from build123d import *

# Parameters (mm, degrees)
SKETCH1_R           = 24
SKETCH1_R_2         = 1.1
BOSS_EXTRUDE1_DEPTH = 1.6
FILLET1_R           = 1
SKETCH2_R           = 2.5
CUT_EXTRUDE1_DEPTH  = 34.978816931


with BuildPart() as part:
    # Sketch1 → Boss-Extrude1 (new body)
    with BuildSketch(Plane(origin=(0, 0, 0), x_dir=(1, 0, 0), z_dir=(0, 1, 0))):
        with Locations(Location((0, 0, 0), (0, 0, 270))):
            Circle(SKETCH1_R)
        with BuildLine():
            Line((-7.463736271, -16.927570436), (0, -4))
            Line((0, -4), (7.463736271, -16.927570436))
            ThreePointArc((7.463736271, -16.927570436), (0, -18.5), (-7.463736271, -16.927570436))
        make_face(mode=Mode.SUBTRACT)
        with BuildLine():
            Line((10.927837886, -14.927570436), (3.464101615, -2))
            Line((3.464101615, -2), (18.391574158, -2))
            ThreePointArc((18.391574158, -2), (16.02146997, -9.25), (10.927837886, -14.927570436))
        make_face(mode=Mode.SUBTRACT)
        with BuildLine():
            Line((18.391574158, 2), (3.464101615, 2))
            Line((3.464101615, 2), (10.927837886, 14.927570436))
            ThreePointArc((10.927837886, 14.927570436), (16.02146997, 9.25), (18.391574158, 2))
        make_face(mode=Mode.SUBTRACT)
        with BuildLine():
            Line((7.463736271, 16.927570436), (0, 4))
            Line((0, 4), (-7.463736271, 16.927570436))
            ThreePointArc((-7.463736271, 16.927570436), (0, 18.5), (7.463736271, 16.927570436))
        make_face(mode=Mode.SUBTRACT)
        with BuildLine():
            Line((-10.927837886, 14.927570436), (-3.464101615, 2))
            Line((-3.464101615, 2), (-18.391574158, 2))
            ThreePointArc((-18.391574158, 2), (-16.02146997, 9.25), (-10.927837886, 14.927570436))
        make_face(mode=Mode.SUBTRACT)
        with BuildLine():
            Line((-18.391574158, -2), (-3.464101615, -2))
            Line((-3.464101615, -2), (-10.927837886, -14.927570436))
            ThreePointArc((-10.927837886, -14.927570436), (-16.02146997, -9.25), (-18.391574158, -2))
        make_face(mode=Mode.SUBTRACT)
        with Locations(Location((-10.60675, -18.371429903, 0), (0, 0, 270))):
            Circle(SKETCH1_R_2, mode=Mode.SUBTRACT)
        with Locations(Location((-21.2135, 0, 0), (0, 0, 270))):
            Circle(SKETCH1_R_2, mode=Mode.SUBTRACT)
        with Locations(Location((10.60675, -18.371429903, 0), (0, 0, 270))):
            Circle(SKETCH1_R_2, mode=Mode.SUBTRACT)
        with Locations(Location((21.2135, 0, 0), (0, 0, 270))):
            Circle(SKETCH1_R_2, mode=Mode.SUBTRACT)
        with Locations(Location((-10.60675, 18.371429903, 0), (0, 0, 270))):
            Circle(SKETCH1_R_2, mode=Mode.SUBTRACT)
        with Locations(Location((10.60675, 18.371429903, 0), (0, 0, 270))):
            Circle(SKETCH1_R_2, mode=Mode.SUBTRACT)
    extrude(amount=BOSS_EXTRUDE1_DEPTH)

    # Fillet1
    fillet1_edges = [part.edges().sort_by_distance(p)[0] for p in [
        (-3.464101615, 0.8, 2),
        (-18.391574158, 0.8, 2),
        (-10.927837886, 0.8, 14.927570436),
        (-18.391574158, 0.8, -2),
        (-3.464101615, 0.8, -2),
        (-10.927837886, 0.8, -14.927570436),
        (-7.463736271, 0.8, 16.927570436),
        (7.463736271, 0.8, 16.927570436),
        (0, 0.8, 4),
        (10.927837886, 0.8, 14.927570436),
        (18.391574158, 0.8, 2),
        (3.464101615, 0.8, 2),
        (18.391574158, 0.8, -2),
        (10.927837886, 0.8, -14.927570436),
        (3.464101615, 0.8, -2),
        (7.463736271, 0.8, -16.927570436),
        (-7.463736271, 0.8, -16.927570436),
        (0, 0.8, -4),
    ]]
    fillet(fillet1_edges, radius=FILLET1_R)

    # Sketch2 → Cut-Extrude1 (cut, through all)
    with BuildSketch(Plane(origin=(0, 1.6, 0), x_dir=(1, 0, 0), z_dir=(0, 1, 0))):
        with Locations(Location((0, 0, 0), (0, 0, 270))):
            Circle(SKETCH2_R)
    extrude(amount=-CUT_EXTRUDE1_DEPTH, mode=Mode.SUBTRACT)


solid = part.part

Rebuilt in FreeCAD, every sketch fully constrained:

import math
import FreeCAD as App
import Part
import Sketcher

V = App.Vector
Q = App.Units.Quantity


def edges_at(feature, points):
    """Names of the edges that pass closest to the given points."""
    edges = feature.Shape.Edges
    near = lambda p: min(range(len(edges)), key=lambda i: edges[i].distToShape(Part.Vertex(*p))[0])
    return sorted({f"Edge{near(p) + 1}" for p in points})

doc = App.newDocument("Part")
body = doc.addObject("PartDesign::Body", "Body")

sketch1 = body.newObject("Sketcher::SketchObject", "Sketch")
sketch1.AttachmentSupport = (doc.getObject("XZ_Plane"), [""])
sketch1.MapMode = "FlatFace"
sketch1.addGeometry(Part.Circle(V(0, 0, 0), V(0, 0, 1), 24), False)
sketch1.addGeometry(Part.Circle(V(-10.6, -18.4, 0), V(0, 0, 1), 1.1), False)
sketch1.addGeometry(Part.ArcOfCircle(Part.Circle(V(0, 0, 0), V(0, 0, 1), 18.5), math.radians(-114), math.radians(-66)), False)
sketch1.addGeometry(Part.LineSegment(V(7.5, -16.9, 0), V(0, -4, 0)), False)
sketch1.addGeometry(Part.LineSegment(V(0, -4, 0), V(-7.5, -16.9, 0)), False)
sketch1.addGeometry(Part.ArcOfCircle(Part.Circle(V(0, 0, 0), V(0, 0, 1), 18.5), math.radians(-174), math.radians(-126)), False)
sketch1.addGeometry(Part.LineSegment(V(-10.9, -14.9, 0), V(-3.5, -2, 0)), False)
sketch1.addGeometry(Part.LineSegment(V(-3.5, -2, 0), V(-18.4, -2, 0)), False)
sketch1.addGeometry(Part.Circle(V(-21.2, 0, 0), V(0, 0, 1), 1.1), False)
sketch1.addGeometry(Part.ArcOfCircle(Part.Circle(V(0, 0, 0), V(0, 0, 1), 18.5), math.radians(126), math.radians(174)), False)
sketch1.addGeometry(Part.LineSegment(V(-18.4, 2, 0), V(-3.5, 2, 0)), False)
sketch1.addGeometry(Part.LineSegment(V(-3.5, 2, 0), V(-10.9, 14.9, 0)), False)
sketch1.addGeometry(Part.Circle(V(-10.6, 18.4, 0), V(0, 0, 1), 1.1), False)
sketch1.addGeometry(Part.Circle(V(10.6, -18.4, 0), V(0, 0, 1), 1.1), False)
sketch1.addGeometry(Part.ArcOfCircle(Part.Circle(V(0, 0, 0), V(0, 0, 1), 18.5), math.radians(-54), math.radians(-6)), False)
sketch1.addGeometry(Part.LineSegment(V(18.4, -2, 0), V(3.5, -2, 0)), False)
sketch1.addGeometry(Part.LineSegment(V(3.5, -2, 0), V(10.9, -14.9, 0)), False)
sketch1.addGeometry(Part.Circle(V(21.2, 0, 0), V(0, 0, 1), 1.1), False)
sketch1.addGeometry(Part.ArcOfCircle(Part.Circle(V(0, 0, 0), V(0, 0, 1), 18.5), math.radians(6), math.radians(54)), False)
sketch1.addGeometry(Part.LineSegment(V(10.9, 14.9, 0), V(3.5, 2, 0)), False)
sketch1.addGeometry(Part.LineSegment(V(3.5, 2, 0), V(18.4, 2, 0)), False)
sketch1.addGeometry(Part.ArcOfCircle(Part.Circle(V(0, 0, 0), V(0, 0, 1), 18.5), math.radians(66), math.radians(114)), False)
sketch1.addGeometry(Part.LineSegment(V(-7.5, 16.9, 0), V(0, 4, 0)), False)
sketch1.addGeometry(Part.LineSegment(V(0, 4, 0), V(7.5, 16.9, 0)), False)
sketch1.addGeometry(Part.Circle(V(10.6, 18.4, 0), V(0, 0, 1), 1.1), False)
sketch1.addConstraint(Sketcher.Constraint("Coincident", 2, 2, 3, 1))
sketch1.addConstraint(Sketcher.Constraint("Coincident", 3, 2, 4, 1))
sketch1.addConstraint(Sketcher.Constraint("Coincident", 4, 2, 2, 1))
sketch1.addConstraint(Sketcher.Constraint("Coincident", 5, 2, 6, 1))
sketch1.addConstraint(Sketcher.Constraint("Coincident", 6, 2, 7, 1))
sketch1.addConstraint(Sketcher.Constraint("Coincident", 7, 2, 5, 1))
sketch1.addConstraint(Sketcher.Constraint("Coincident", 9, 2, 10, 1))
sketch1.addConstraint(Sketcher.Constraint("Coincident", 10, 2, 11, 1))
sketch1.addConstraint(Sketcher.Constraint("Coincident", 11, 2, 9, 1))
sketch1.addConstraint(Sketcher.Constraint("Coincident", 14, 2, 15, 1))
sketch1.addConstraint(Sketcher.Constraint("Coincident", 15, 2, 16, 1))
sketch1.addConstraint(Sketcher.Constraint("Coincident", 16, 2, 14, 1))
sketch1.addConstraint(Sketcher.Constraint("Coincident", 18, 2, 19, 1))
sketch1.addConstraint(Sketcher.Constraint("Coincident", 19, 2, 20, 1))
sketch1.addConstraint(Sketcher.Constraint("Coincident", 20, 2, 18, 1))
sketch1.addConstraint(Sketcher.Constraint("Coincident", 21, 2, 22, 1))
sketch1.addConstraint(Sketcher.Constraint("Coincident", 22, 2, 23, 1))
sketch1.addConstraint(Sketcher.Constraint("Coincident", 23, 2, 21, 1))
sketch1.addConstraint(Sketcher.Constraint("Horizontal", 7))
sketch1.addConstraint(Sketcher.Constraint("Horizontal", 10))
sketch1.addConstraint(Sketcher.Constraint("Horizontal", 15))
sketch1.addConstraint(Sketcher.Constraint("Horizontal", 20))
sketch1.addConstraint(Sketcher.Constraint("Coincident", 0, 3, -1, 1))
sketch1.addConstraint(Sketcher.Constraint("Coincident", 2, 3, -1, 1))
sketch1.addConstraint(Sketcher.Constraint("Coincident", 5, 3, -1, 1))
sketch1.addConstraint(Sketcher.Constraint("Coincident", 9, 3, -1, 1))
sketch1.addConstraint(Sketcher.Constraint("Coincident", 14, 3, -1, 1))
sketch1.addConstraint(Sketcher.Constraint("Coincident", 18, 3, -1, 1))
sketch1.addConstraint(Sketcher.Constraint("Coincident", 21, 3, -1, 1))
sketch1.addConstraint(Sketcher.Constraint("Equal", 2, 5))
sketch1.addConstraint(Sketcher.Constraint("Equal", 1, 8))
sketch1.addConstraint(Sketcher.Constraint("Equal", 5, 9))
sketch1.addConstraint(Sketcher.Constraint("Equal", 8, 12))
sketch1.addConstraint(Sketcher.Constraint("Equal", 12, 13))
sketch1.addConstraint(Sketcher.Constraint("Equal", 9, 14))
sketch1.addConstraint(Sketcher.Constraint("Equal", 13, 17))
sketch1.addConstraint(Sketcher.Constraint("Equal", 14, 18))
sketch1.addConstraint(Sketcher.Constraint("Equal", 18, 21))
sketch1.addConstraint(Sketcher.Constraint("Equal", 17, 24))
sketch1.addConstraint(Sketcher.Constraint("Symmetric", 12, 3, 13, 3, -1, 1))
sketch1.addConstraint(Sketcher.Constraint("Symmetric", 8, 3, 17, 3, -1, 1))
sketch1.addConstraint(Sketcher.Constraint("Symmetric", 1, 3, 24, 3, -1, 1))
sketch1.addConstraint(Sketcher.Constraint("Symmetric", 10, 2, 15, 2, -1, 1))
sketch1.addConstraint(Sketcher.Constraint("Symmetric", 6, 2, 19, 2, -1, 1))
sketch1.addConstraint(Sketcher.Constraint("Symmetric", 3, 2, 22, 2, -1, 1))
sketch1.addConstraint(Sketcher.Constraint("Symmetric", 1, 3, 13, 3, -2))
sketch1.addConstraint(Sketcher.Constraint("Symmetric", 6, 2, 15, 2, -2))
sketch1.addConstraint(Sketcher.Constraint("PointOnObject", 8, 3, -1))
sketch1.addConstraint(Sketcher.Constraint("PointOnObject", 3, 2, -2))
sketch1.addConstraint(Sketcher.Constraint("Parallel", 4, 6))
sketch1.addConstraint(Sketcher.Constraint("Parallel", 3, 11))
sketch1.addConstraint(Sketcher.Constraint("Parallel", 11, 16))
sketch1.addConstraint(Sketcher.Constraint("Parallel", 6, 19))
sketch1.addConstraint(Sketcher.Constraint("Parallel", 16, 22))
sketch1.addConstraint(Sketcher.Constraint("Parallel", 19, 23))
sketch1.addConstraint(Sketcher.Constraint("Horizontal", 2, 2, 4, 2))
sketch1.addConstraint(Sketcher.Constraint("Equal", 4, 6))
sketch1.addConstraint(Sketcher.Constraint("Diameter", 0, Q("48 mm")))
sketch1.addConstraint(Sketcher.Constraint("Diameter", 1, Q("2.2 mm")))
sketch1.addConstraint(Sketcher.Constraint("Radius", 2, Q("18.5 mm")))
sketch1.addConstraint(Sketcher.Constraint("Angle", 3, Q("120 deg")))
sketch1.addConstraint(Sketcher.Constraint("DistanceY", 3, 2, -1, 1, Q("4 mm")))
sketch1.addConstraint(Sketcher.Constraint("DistanceY", 6, 2, -1, 1, Q("2 mm")))
sketch1.addConstraint(Sketcher.Constraint("DistanceX", 8, 3, -1, 1, Q("21.2135 mm")))
sketch1.addConstraint(Sketcher.Constraint("DistanceX", 1, 3, 13, 3, Q("21.2135 mm")))
sketch1.addConstraint(Sketcher.Constraint("DistanceY", 1, 3, -1, 1, Q("18.37143 mm")))
pad1 = body.newObject("PartDesign::Pad", "Pad")
pad1.Profile = sketch1
pad1.Length = 1.6
pad1.Reversed = True
doc.recompute()

fillet = body.newObject("PartDesign::Fillet", "Fillet")
fillet.Base = (pad1, edges_at(pad1, [
    (-3.464, 0.8, 2),
    (-18.392, 0.8, 2),
    (-10.928, 0.8, 14.928),
    (-18.392, 0.8, -2),
    (-3.464, 0.8, -2),
    (-10.928, 0.8, -14.928),
    (-7.464, 0.8, 16.928),
    (7.464, 0.8, 16.928),
    (0, 0.8, 4),
    (10.928, 0.8, 14.928),
    (18.392, 0.8, 2),
    (3.464, 0.8, 2),
    (18.392, 0.8, -2),
    (10.928, 0.8, -14.928),
    (3.464, 0.8, -2),
    (7.464, 0.8, -16.928),
    (-7.464, 0.8, -16.928),
    (0, 0.8, -4),
]))
fillet.Radius = 1

sketch2 = body.newObject("Sketcher::SketchObject", "Sketch001")
sketch2.AttachmentSupport = (doc.getObject("XZ_Plane"), [""])
sketch2.MapMode = "FlatFace"
sketch2.AttachmentOffset = App.Placement(V(0, 0, -1.6), App.Rotation())
sketch2.addGeometry(Part.Circle(V(0, 0, 0), V(0, 0, 1), 2.5), False)
sketch2.addConstraint(Sketcher.Constraint("Coincident", 0, 3, -1, 1))
sketch2.addConstraint(Sketcher.Constraint("Diameter", 0, Q("5 mm")))
pocket1 = body.newObject("PartDesign::Pocket", "Pocket")
pocket1.Profile = sketch2
pocket1.Type = "ThroughAll"
pocket1.Reversed = True

doc.recompute()
